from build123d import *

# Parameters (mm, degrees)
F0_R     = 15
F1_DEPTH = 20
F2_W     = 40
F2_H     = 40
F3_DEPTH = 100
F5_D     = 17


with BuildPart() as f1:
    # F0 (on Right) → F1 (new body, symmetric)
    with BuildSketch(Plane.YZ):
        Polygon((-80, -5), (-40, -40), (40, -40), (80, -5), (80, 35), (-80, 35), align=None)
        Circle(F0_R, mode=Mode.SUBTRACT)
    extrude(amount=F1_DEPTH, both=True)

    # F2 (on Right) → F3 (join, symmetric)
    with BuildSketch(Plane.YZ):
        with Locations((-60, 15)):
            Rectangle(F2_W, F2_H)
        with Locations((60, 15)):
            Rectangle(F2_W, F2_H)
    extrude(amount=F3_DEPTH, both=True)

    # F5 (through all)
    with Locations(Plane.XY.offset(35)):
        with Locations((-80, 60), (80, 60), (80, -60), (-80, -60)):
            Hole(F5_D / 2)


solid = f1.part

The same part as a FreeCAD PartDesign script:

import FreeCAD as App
import Part
import Sketcher
from FreeCAD import Vector
Q = App.Units.Quantity


def add_polygon(sketch, points):
    """Adds a closed chain of lines whose ends are joined by coincident constraints."""
    first, n = sketch.GeometryCount, len(points)
    for a, b in zip(points, points[1:] + points[:1]):
        sketch.addGeometry(Part.LineSegment(App.Vector(*a, 0), App.Vector(*b, 0)), False)
    for i in range(n):
        sketch.addConstraint(Sketcher.Constraint("Coincident", first + i, 2, first + (i + 1) % n, 1))

doc = App.newDocument("Part")
body = doc.addObject("PartDesign::Body", "Body")

# Sketch on YZ plane
sketch1 = doc.addObject("Sketcher::SketchObject", "Sketch")
body.addObject(sketch1)
sketch1.AttachmentSupport = (doc.YZ_Plane, [""])
sketch1.MapMode = "FlatFace"
add_polygon(sketch1, [(-80, -5), (-40, -40), (40, -40), (80, -5), (80, 35), (-80, 35)])  # lines 0-5
sketch1.addGeometry(Part.Circle(Vector(0, 0, 0), Vector(0, 0, 1), 15), False)  # 6
sketch1.addConstraint(Sketcher.Constraint("Horizontal", 1))
sketch1.addConstraint(Sketcher.Constraint("Vertical", 3))
sketch1.addConstraint(Sketcher.Constraint("Horizontal", 4))
sketch1.addConstraint(Sketcher.Constraint("Vertical", 5))
sketch1.addConstraint(Sketcher.Constraint("Coincident", 6, 3, -1, 1))
sketch1.addConstraint(Sketcher.Constraint("Symmetric", 2, 2, 5, 2, -2))
sketch1.addConstraint(Sketcher.Constraint("Equal", 0, 2))
sketch1.addConstraint(Sketcher.Constraint("Diameter", 6, Q("30 mm")))
sketch1.addConstraint(Sketcher.Constraint("DistanceX", 1, 1, 1, 2, Q("80 mm")))
sketch1.addConstraint(Sketcher.Constraint("DistanceX", 4, 2, 4, 1, Q("160 mm")))
sketch1.addConstraint(Sketcher.Constraint("DistanceY", 3, 1, 3, 2, Q("40 mm")))
sketch1.addConstraint(Sketcher.Constraint("DistanceY", 0, 2, -1, 1, Q("40 mm")))
sketch1.addConstraint(Sketcher.Constraint("DistanceY", 2, 2, -1, 1, Q("5 mm")))
pad1 = doc.addObject("PartDesign::Pad", "Pad")
body.addObject(pad1)
pad1.Profile = sketch1
pad1.Length = 40
pad1.Midplane = True

# Sketch on YZ plane
sketch2 = doc.addObject("Sketcher::SketchObject", "Sketch001")
body.addObject(sketch2)
sketch2.AttachmentSupport = (doc.YZ_Plane, [""])
sketch2.MapMode = "FlatFace"
add_polygon(sketch2, [(-80, 35), (-80, -5), (-40, -5), (-40, 35)])  # lines 0-3
add_polygon(sketch2, [(40, 35), (40, -5), (80, -5), (80, 35)])  # lines 4-7
sketch2.addConstraint(Sketcher.Constraint("Vertical", 0))
sketch2.addConstraint(Sketcher.Constraint("Horizontal", 1))
sketch2.addConstraint(Sketcher.Constraint("Vertical", 2))
sketch2.addConstraint(Sketcher.Constraint("Horizontal", 3))
sketch2.addConstraint(Sketcher.Constraint("Vertical", 4))
sketch2.addConstraint(Sketcher.Constraint("Horizontal", 5))
sketch2.addConstraint(Sketcher.Constraint("Vertical", 6))
sketch2.addConstraint(Sketcher.Constraint("Horizontal", 7))
sketch2.addConstraint(Sketcher.Constraint("Symmetric", 1, 2, 4, 2, -2))
sketch2.addConstraint(Sketcher.Constraint("Symmetric", 3, 2, 6, 2, -2))
sketch2.addConstraint(Sketcher.Constraint("Equal", 7, 0))
sketch2.addConstraint(Sketcher.Constraint("DistanceX", 1, 1, 1, 2, Q("40 mm")))
sketch2.addConstraint(Sketcher.Constraint("DistanceX", 0, 2, -1, 1, Q("80 mm")))
sketch2.addConstraint(Sketcher.Constraint("DistanceY", 0, 2, -1, 1, Q("5 mm")))
pad2 = doc.addObject("PartDesign::Pad", "Pad001")
body.addObject(pad2)
pad2.Profile = sketch2
pad2.Length = 200
pad2.Midplane = True

# Sketch on XY plane
sketch3 = doc.addObject("Sketcher::SketchObject", "Sketch002")
body.addObject(sketch3)
sketch3.AttachmentSupport = (doc.XY_Plane, [""])
sketch3.MapMode = "FlatFace"
sketch3.AttachmentOffset = App.Placement(Vector(0, 0, 35), App.Rotation())
sketch3.addGeometry(Part.Circle(Vector(-80, 60, 0), Vector(0, 0, 1), 8), False)
sketch3.addGeometry(Part.Circle(Vector(80, 60, 0), Vector(0, 0, 1), 8), False)
sketch3.addGeometry(Part.Circle(Vector(80, -60, 0), Vector(0, 0, 1), 8), False)
sketch3.addGeometry(Part.Circle(Vector(-80, -60, 0), Vector(0, 0, 1), 8), False)
sketch3.addConstraint(Sketcher.Constraint("Equal", 0, 1))
sketch3.addConstraint(Sketcher.Constraint("Equal", 1, 2))
sketch3.addConstraint(Sketcher.Constraint("Equal", 2, 3))
sketch3.addConstraint(Sketcher.Constraint("Symmetric", 0, 3, 2, 3, -1, 1))
sketch3.addConstraint(Sketcher.Constraint("Symmetric", 1, 3, 3, 3, -1, 1))
sketch3.addConstraint(Sketcher.Constraint("Symmetric", 0, 3, 1, 3, -2))
sketch3.addConstraint(Sketcher.Constraint("Diameter", 0, Q("17 mm")))
sketch3.addConstraint(Sketcher.Constraint("DistanceX", 0, 3, -1, 1, Q("80 mm")))
sketch3.addConstraint(Sketcher.Constraint("DistanceY", -1, 1, 0, 3, Q("60 mm")))
doc.recompute()
hole = doc.addObject("PartDesign::Hole", "Hole")
body.addObject(hole)
hole.Profile = sketch3
hole.ThreadType = "None"
hole.Diameter = 17
hole.DepthType = "ThroughAll"

doc.recompute()
